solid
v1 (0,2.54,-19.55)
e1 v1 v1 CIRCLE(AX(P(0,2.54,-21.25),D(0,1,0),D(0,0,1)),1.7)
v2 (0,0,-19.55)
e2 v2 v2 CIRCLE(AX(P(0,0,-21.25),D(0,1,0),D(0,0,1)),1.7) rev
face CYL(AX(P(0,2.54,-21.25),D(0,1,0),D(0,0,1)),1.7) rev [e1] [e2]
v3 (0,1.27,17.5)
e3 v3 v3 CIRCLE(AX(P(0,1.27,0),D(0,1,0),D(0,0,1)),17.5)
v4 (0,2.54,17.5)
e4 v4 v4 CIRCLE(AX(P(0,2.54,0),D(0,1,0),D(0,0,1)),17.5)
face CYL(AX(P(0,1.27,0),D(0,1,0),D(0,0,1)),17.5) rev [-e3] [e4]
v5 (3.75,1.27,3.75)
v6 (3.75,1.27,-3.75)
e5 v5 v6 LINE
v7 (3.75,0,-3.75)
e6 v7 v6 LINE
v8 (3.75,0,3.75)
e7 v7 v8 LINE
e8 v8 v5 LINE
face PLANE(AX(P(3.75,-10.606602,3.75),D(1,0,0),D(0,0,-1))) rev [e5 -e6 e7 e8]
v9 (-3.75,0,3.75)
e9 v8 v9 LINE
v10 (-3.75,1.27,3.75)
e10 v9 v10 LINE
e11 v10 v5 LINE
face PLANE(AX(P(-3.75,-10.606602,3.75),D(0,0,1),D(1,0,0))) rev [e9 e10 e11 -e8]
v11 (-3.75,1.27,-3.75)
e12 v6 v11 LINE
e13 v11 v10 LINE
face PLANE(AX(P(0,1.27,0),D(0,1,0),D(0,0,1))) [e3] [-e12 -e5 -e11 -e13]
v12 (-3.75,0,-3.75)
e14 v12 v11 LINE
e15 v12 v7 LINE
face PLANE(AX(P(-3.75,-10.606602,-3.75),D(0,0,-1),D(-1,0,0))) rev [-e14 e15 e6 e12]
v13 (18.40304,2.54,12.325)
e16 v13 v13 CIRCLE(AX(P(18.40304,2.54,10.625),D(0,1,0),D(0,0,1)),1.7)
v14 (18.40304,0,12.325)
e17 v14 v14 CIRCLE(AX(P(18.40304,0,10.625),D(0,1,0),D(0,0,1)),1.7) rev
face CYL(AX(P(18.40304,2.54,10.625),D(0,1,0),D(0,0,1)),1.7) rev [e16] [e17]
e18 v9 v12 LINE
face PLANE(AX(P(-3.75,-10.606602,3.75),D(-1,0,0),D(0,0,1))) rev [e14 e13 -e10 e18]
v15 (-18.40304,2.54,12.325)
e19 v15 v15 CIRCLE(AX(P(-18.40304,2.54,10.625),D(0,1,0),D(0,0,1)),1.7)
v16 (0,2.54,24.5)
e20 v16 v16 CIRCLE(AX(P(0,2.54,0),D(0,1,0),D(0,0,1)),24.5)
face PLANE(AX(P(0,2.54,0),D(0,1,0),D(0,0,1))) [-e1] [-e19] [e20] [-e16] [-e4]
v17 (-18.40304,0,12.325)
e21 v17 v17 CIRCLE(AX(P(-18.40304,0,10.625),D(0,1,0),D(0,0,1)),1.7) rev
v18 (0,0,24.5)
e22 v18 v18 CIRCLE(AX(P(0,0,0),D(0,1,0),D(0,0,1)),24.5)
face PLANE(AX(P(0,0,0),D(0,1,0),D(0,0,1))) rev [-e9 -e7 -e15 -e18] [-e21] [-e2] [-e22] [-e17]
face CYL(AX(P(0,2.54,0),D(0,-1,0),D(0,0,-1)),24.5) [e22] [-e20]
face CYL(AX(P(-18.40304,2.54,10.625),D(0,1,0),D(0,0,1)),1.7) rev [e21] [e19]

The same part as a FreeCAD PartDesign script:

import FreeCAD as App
import Part
import Sketcher


def add_polygon(sketch, points):
    """Adds a closed chain of lines whose ends are joined by coincident constraints."""
    first, n = sketch.GeometryCount, len(points)
    for a, b in zip(points, points[1:] + points[:1]):
        sketch.addGeometry(Part.LineSegment(App.Vector(*a, 0), App.Vector(*b, 0)), False)
    for i in range(n):
        sketch.addConstraint(Sketcher.Constraint("Coincident", first + i, 2, first + (i + 1) % n, 1))

doc = App.newDocument("Part")
body = doc.addObject("PartDesign::Body", "Body")

# Sketch on XZ plane
sketch1 = body.newObject("Sketcher::SketchObject", "Sketch")
sketch1.AttachmentSupport = (doc.getObject("XZ_Plane"), [""])
sketch1.MapMode = "FlatFace"
sketch1.addGeometry(Part.Circle(App.Vector(0, 0, 0), App.Vector(0, 0, 1), 24), False)
sketch1.addConstraint([
    Sketcher.Constraint("Coincident", 0, 3, -1, 1),
    Sketcher.Constraint("Diameter", 0, 49.0),
])
pad1 = body.newObject("PartDesign::Pad", "Pad")
pad1.Profile = sketch1
pad1.Length = 2.54
pad1.Reversed = True

# Sketch on XZ plane
sketch2 = body.newObject("Sketcher::SketchObject", "Sketch001")
sketch2.AttachmentSupport = (doc.getObject("XZ_Plane"), [""])
sketch2.MapMode = "FlatFace"
sketch2.AttachmentOffset = App.Placement(App.Vector(0, 0, -2.54), App.Rotation())
sketch2.addGeometry([
    Part.Circle(App.Vector(-18.4, 10.6, 0), App.Vector(0, 0, 1), 1.7),
    Part.Circle(App.Vector(18.4, 10.6, 0), App.Vector(0, 0, 1), 1.7),
    Part.Circle(App.Vector(0, -21.2, 0), App.Vector(0, 0, 1), 1.7),
], False)
sketch2.addConstraint([
    Sketcher.Constraint("Equal", 0, 1),
    Sketcher.Constraint("Equal", 1, 2),
    Sketcher.Constraint("Symmetric", 0, 3, 1, 3, -2),
    Sketcher.Constraint("PointOnObject", 2, 3, -2),
    Sketcher.Constraint("Diameter", 0, 3.4),
    Sketcher.Constraint("DistanceY", 2, 3, -1, 1, 21.25),
    Sketcher.Constraint("DistanceY", -1, 1, 0, 3, 10.625),
    Sketcher.Constraint("DistanceX", 0, 3, -1, 1, 18.40304),
])
doc.recompute()
hole = body.newObject("PartDesign::Hole", "Hole")
hole.Profile = sketch2
hole.ThreadType = "None"
hole.Diameter = 3.4
hole.DepthType = "ThroughAll"
hole.Reversed = True

# Sketch on XZ plane
sketch3 = body.newObject("Sketcher::SketchObject", "Sketch002")
sketch3.AttachmentSupport = (doc.getObject("XZ_Plane"), [""])
sketch3.MapMode = "FlatFace"
sketch3.AttachmentOffset = App.Placement(App.Vector(0, 0, -2.54), App.Rotation())
sketch3.addGeometry(Part.Circle(App.Vector(0, 0, 0), App.Vector(0, 0, 1), 18), False)
sketch3.addConstraint([
    Sketcher.Constraint("Coincident", 0, 3, -1, 1),
    Sketcher.Constraint("Diameter", 0, 35.0),
])
pocket1 = body.newObject("PartDesign::Pocket", "Pocket")
pocket1.Profile = sketch3
pocket1.Length = 1.27
pocket1.Reversed = True

# Sketch on XZ plane
sketch4 = body.newObject("Sketcher::SketchObject", "Sketch003")
sketch4.AttachmentSupport = (doc.getObject("XZ_Plane"), [""])
sketch4.MapMode = "FlatFace"
sketch4.AttachmentOffset = App.Placement(App.Vector(0, 0, -1.27), App.Rotation())
add_polygon(sketch4, [(-4, -4), (-4, 4), (4, 4), (4, -4)])  # lines 0-3
sketch4.addConstraint([
    Sketcher.Constraint("Vertical", 0),
    Sketcher.Constraint("Horizontal", 1),
    Sketcher.Constraint("Vertical", 2),
    Sketcher.Constraint("Horizontal", 3),
    Sketcher.Constraint("Symmetric", 0, 2, 2, 2, -1, 1),
    Sketcher.Constraint("Equal", 3, 0),
    Sketcher.Constraint("DistanceX", 1, 1, 1, 2, 7.5),
])
pocket2 = body.newObject("PartDesign::Pocket", "Pocket001")
pocket2.Profile = sketch4
pocket2.Length = 1.27
pocket2.Reversed = True

doc.recompute()
